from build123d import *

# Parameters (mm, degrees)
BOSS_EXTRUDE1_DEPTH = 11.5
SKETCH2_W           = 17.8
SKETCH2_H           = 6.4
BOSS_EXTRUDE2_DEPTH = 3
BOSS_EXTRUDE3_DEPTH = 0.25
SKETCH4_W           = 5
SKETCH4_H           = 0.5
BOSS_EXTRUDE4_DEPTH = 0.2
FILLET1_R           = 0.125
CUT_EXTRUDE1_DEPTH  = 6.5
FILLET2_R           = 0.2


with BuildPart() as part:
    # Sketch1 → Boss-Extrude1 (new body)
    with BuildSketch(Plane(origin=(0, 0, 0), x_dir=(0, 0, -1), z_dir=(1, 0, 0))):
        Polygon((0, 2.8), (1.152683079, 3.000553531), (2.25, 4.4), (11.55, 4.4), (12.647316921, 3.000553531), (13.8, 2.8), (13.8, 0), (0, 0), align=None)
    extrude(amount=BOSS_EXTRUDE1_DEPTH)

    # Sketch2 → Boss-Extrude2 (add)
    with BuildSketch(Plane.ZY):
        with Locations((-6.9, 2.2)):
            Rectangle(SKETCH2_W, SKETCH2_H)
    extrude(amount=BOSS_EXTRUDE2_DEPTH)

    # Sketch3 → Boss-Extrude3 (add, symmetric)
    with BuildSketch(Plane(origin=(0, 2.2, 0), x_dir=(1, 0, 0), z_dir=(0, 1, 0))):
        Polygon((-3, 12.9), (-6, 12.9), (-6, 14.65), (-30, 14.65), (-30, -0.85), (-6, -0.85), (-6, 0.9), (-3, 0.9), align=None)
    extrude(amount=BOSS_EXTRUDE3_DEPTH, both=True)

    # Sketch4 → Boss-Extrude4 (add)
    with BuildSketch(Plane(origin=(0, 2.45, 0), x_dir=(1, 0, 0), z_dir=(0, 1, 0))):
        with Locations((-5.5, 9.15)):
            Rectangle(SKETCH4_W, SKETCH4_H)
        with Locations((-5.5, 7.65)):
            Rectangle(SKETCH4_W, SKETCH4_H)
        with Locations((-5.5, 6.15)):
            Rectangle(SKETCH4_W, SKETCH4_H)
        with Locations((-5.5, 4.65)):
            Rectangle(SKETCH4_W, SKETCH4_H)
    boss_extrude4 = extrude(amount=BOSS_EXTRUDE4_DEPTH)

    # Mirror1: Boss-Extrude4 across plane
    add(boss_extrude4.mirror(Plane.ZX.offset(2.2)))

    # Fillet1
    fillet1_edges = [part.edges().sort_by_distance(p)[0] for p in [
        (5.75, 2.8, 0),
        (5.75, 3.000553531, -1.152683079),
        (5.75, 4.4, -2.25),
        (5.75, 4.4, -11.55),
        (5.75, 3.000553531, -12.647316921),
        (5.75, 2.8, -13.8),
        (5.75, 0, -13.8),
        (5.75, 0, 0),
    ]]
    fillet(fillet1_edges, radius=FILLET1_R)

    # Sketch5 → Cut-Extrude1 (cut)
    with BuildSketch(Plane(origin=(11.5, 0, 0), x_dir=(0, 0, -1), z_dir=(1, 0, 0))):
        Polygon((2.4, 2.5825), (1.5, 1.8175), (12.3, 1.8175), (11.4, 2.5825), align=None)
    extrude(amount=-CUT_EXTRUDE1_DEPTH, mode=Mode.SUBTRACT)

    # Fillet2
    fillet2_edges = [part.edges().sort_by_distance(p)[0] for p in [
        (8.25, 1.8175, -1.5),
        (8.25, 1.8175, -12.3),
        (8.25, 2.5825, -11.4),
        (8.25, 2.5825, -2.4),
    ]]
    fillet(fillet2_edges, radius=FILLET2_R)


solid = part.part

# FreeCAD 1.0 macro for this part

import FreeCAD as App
import Part
import Sketcher
Q = App.Units.Quantity


def edges_at(feature, points):
    """Names of the edges that pass closest to the given points."""
    edges = feature.Shape.Edges
    near = lambda p: min(range(len(edges)), key=lambda i: edges[i].distToShape(Part.Vertex(*p))[0])
    return sorted({f"Edge{near(p) + 1}" for p in points})


def add_polygon(sketch, points):
    """Adds a closed chain of lines whose ends are joined by coincident constraints."""
    first, n = sketch.GeometryCount, len(points)
    for a, b in zip(points, points[1:] + points[:1]):
        sketch.addGeometry(Part.LineSegment(App.Vector(*a, 0), App.Vector(*b, 0)), False)
    for i in range(n):
        sketch.addConstraint(Sketcher.Constraint("Coincident", first + i, 2, first + (i + 1) % n, 1))

doc = App.newDocument("Part")
body = doc.addObject("PartDesign::Body", "Body")

# Sketch on YZ plane
sketch1 = body.newObject("Sketcher::SketchObject", "Sketch")
sketch1.AttachmentSupport = (doc.getObject("YZ_Plane"), [""])
sketch1.MapMode = "FlatFace"
add_polygon(sketch1, [(3, -1.2), (2.8, 0), (0, 0), (0, -13.8), (2.8, -13.8), (3, -12.6), (4.4, -11.6), (4.4, -2.2)])  # lines 0-7
sketch1.addConstraint(Sketcher.Constraint("Horizontal", 1))
sketch1.addConstraint(Sketcher.Constraint("Vertical", 2))
sketch1.addConstraint(Sketcher.Constraint("Horizontal", 3))
sketch1.addConstraint(Sketcher.Constraint("Vertical", 6))
sketch1.addConstraint(Sketcher.Constraint("Coincident", 1, 2, -1, 1))
sketch1.addConstraint(Sketcher.Constraint("Vertical", 0, 2, 3, 2))
sketch1.addConstraint(Sketcher.Constraint("Vertical", 4, 2, 7, 2))
sketch1.addConstraint(Sketcher.Constraint("Equal", 0, 4))
sketch1.addConstraint(Sketcher.Constraint("Equal", 5, 7))
sketch1.addConstraint(Sketcher.Constraint("DistanceX", 1, 2, 1, 1, Q("2.8 mm")))
sketch1.addConstraint(Sketcher.Constraint("DistanceY", 2, 2, 2, 1, Q("13.8 mm")))
sketch1.addConstraint(Sketcher.Constraint("DistanceY", 6, 1, 6, 2, Q("9.3 mm")))
sketch1.addConstraint(Sketcher.Constraint("DistanceX", -1, 1, 5, 2, Q("4.4 mm")))
sketch1.addConstraint(Sketcher.Constraint("Angle", 0, Q("99.87 deg")))
sketch1.addConstraint(Sketcher.Constraint("Distance", 0, Q("1.17 mm")))
pad1 = body.newObject("PartDesign::Pad", "Pad")
pad1.Profile = sketch1
pad1.Length = 11.5

# Sketch on YZ plane
sketch2 = body.newObject("Sketcher::SketchObject", "Sketch001")
sketch2.AttachmentSupport = (doc.getObject("YZ_Plane"), [""])
sketch2.MapMode = "FlatFace"
add_polygon(sketch2, [(5, -16), (-1, -16), (-1, 2), (5, 2)])  # lines 0-3
sketch2.addConstraint(Sketcher.Constraint("Horizontal", 0))
sketch2.addConstraint(Sketcher.Constraint("Vertical", 1))
sketch2.addConstraint(Sketcher.Constraint("Horizontal", 2))
sketch2.addConstraint(Sketcher.Constraint("Vertical", 3))
sketch2.addConstraint(Sketcher.Constraint("DistanceX", 0, 2, 0, 1, Q("6.4 mm")))
sketch2.addConstraint(Sketcher.Constraint("DistanceY", 1, 1, 1, 2, Q("17.8 mm")))
sketch2.addConstraint(Sketcher.Constraint("DistanceX", 0, 2, -1, 1, Q("1 mm")))
sketch2.addConstraint(Sketcher.Constraint("DistanceY", -1, 1, 1, 2, Q("2 mm")))
pad2 = body.newObject("PartDesign::Pad", "Pad001")
pad2.Profile = sketch2
pad2.Length = 3
pad2.Reversed = True

# Sketch on XZ plane
sketch3 = body.newObject("Sketcher::SketchObject", "Sketch002")
sketch3.AttachmentSupport = (doc.getObject("XZ_Plane"), [""])
sketch3.MapMode = "FlatFace"
sketch3.AttachmentOffset = App.Placement(App.Vector(0, 0, -2.2), App.Rotation())
add_polygon(sketch3, [(-3, -12.9), (-6, -12.9), (-6, -14.7), (-30, -14.7), (-30, 0.8), (-6, 0.8), (-6, -0.9), (-3, -0.9)])  # lines 0-7
sketch3.addConstraint(Sketcher.Constraint("Horizontal", 0))
sketch3.addConstraint(Sketcher.Constraint("Vertical", 1))
sketch3.addConstraint(Sketcher.Constraint("Horizontal", 2))
sketch3.addConstraint(Sketcher.Constraint("Vertical", 3))
sketch3.addConstraint(Sketcher.Constraint("Horizontal", 4))
sketch3.addConstraint(Sketcher.Constraint("Vertical", 5))
sketch3.addConstraint(Sketcher.Constraint("Horizontal", 6))
sketch3.addConstraint(Sketcher.Constraint("Vertical", 7))
sketch3.addConstraint(Sketcher.Constraint("Vertical", 1, 2, 4, 2))
sketch3.addConstraint(Sketcher.Constraint("Equal", 1, 5))
sketch3.addConstraint(Sketcher.Constraint("DistanceX", 0, 2, 0, 1, Q("3 mm")))
sketch3.addConstraint(Sketcher.Constraint("DistanceX", 2, 2, 2, 1, Q("24 mm")))
sketch3.addConstraint(Sketcher.Constraint("DistanceY", 7, 2, 7, 1, Q("12 mm")))
sketch3.addConstraint(Sketcher.Constraint("DistanceY", 3, 1, 3, 2, Q("15.5 mm")))
sketch3.addConstraint(Sketcher.Constraint("DistanceX", 0, 2, -1, 1, Q("6 mm")))
sketch3.addConstraint(Sketcher.Constraint("DistanceY", 0, 2, -1, 1, Q("12.9 mm")))
pad3 = body.newObject("PartDesign::Pad", "Pad002")
pad3.Profile = sketch3
pad3.Length = 0.5
pad3.Midplane = True

# Sketch on XZ plane
sketch4 = body.newObject("Sketcher::SketchObject", "Sketch003")
sketch4.AttachmentSupport = (doc.getObject("XZ_Plane"), [""])
sketch4.MapMode = "FlatFace"
sketch4.AttachmentOffset = App.Placement(App.Vector(0, 0, -2.45), App.Rotation())
add_polygon(sketch4, [(-8, -9.4), (-8, -8.9), (-3, -8.9), (-3, -9.4)])  # lines 0-3
add_polygon(sketch4, [(-8, -7.9), (-8, -7.4), (-3, -7.4), (-3, -7.9)])  # lines 4-7
add_polygon(sketch4, [(-8, -6.4), (-8, -5.9), (-3, -5.9), (-3, -6.4)])  # lines 8-11
add_polygon(sketch4, [(-8, -4.9), (-8, -4.4), (-3, -4.4), (-3, -4.9)])  # lines 12-15
sketch4.addConstraint(Sketcher.Constraint("Vertical", 0))
sketch4.addConstraint(Sketcher.Constraint("Horizontal", 1))
sketch4.addConstraint(Sketcher.Constraint("Vertical", 2))
sketch4.addConstraint(Sketcher.Constraint("Horizontal", 3))
sketch4.addConstraint(Sketcher.Constraint("Vertical", 4))
sketch4.addConstraint(Sketcher.Constraint("Horizontal", 5))
sketch4.addConstraint(Sketcher.Constraint("Vertical", 6))
sketch4.addConstraint(Sketcher.Constraint("Horizontal", 7))
sketch4.addConstraint(Sketcher.Constraint("Vertical", 8))
sketch4.addConstraint(Sketcher.Constraint("Horizontal", 9))
sketch4.addConstraint(Sketcher.Constraint("Vertical", 10))
sketch4.addConstraint(Sketcher.Constraint("Horizontal", 11))
sketch4.addConstraint(Sketcher.Constraint("Vertical", 12))
sketch4.addConstraint(Sketcher.Constraint("Horizontal", 13))
sketch4.addConstraint(Sketcher.Constraint("Vertical", 14))
sketch4.addConstraint(Sketcher.Constraint("Horizontal", 15))
sketch4.addConstraint(Sketcher.Constraint("Vertical", 3, 2, 4, 2))
sketch4.addConstraint(Sketcher.Constraint("Vertical", 2, 2, 5, 2))
sketch4.addConstraint(Sketcher.Constraint("Vertical", 7, 2, 8, 2))
sketch4.addConstraint(Sketcher.Constraint("Vertical", 6, 2, 9, 2))
sketch4.addConstraint(Sketcher.Constraint("Vertical", 11, 2, 12, 2))
sketch4.addConstraint(Sketcher.Constraint("Vertical", 10, 2, 13, 2))
sketch4.addConstraint(Sketcher.Constraint("Equal", 2, 4))
sketch4.addConstraint(Sketcher.Constraint("Equal", 6, 8))
sketch4.addConstraint(Sketcher.Constraint("Equal", 10, 12))
sketch4.addConstraint(Sketcher.Constraint("DistanceX", 1, 1, 1, 2, Q("5 mm")))
sketch4.addConstraint(Sketcher.Constraint("DistanceY", 0, 1, 0, 2, Q("0.5 mm")))
sketch4.addConstraint(Sketcher.Constraint("DistanceX", 0, 2, -1, 1, Q("8 mm")))
sketch4.addConstraint(Sketcher.Constraint("DistanceY", 3, 2, 4, 2, Q("2 mm")))
sketch4.addConstraint(Sketcher.Constraint("DistanceY", 7, 2, 8, 2, Q("2 mm")))
sketch4.addConstraint(Sketcher.Constraint("DistanceY", 11, 2, 12, 2, Q("2 mm")))
sketch4.addConstraint(Sketcher.Constraint("DistanceY", 0, 2, -1, 1, Q("8.9 mm")))
pad4 = body.newObject("PartDesign::Pad", "Pad003")
pad4.Profile = sketch4
pad4.Length = 0.2
pad4.Reversed = True
doc.recompute()

datumplane = body.newObject("PartDesign::Plane", "DatumPlane")
datumplane.AttachmentSupport = (doc.getObject("XZ_Plane"), [""])
datumplane.MapMode = "FlatFace"
datumplane.AttachmentOffset = App.Placement(App.Vector(0, 0, -2.2), App.Rotation())
mirrored = body.newObject("PartDesign::Mirrored", "Mirrored")
mirrored.Originals = [pad4]
mirrored.MirrorPlane = (datumplane, [""])
body.Tip = mirrored
doc.recompute()

fillet = body.newObject("PartDesign::Fillet", "Fillet")
fillet.Base = (mirrored, edges_at(mirrored, [
    (5.75, 2.8, 0),
    (5.75, 3.001, -1.153),
    (5.75, 4.4, -2.25),
    (5.75, 4.4, -11.55),
    (5.75, 3.001, -12.647),
    (5.75, 2.8, -13.8),
    (5.75, 0, -13.8),
    (5.75, 0, 0),
]))
fillet.Radius = 0.125

# Sketch on YZ plane
sketch5 = body.newObject("Sketcher::SketchObject", "Sketch004")
sketch5.AttachmentSupport = (doc.getObject("YZ_Plane"), [""])
sketch5.MapMode = "FlatFace"
sketch5.AttachmentOffset = App.Placement(App.Vector(0, 0, 11.5), App.Rotation())
add_polygon(sketch5, [(2.6, -2.4), (1.8, -1.5), (1.8, -12.3), (2.6, -11.4)])  # lines 0-3
sketch5.addConstraint(Sketcher.Constraint("Vertical", 1))
sketch5.addConstraint(Sketcher.Constraint("Vertical", 3))
sketch5.addConstraint(Sketcher.Constraint("Equal", 0, 2))
sketch5.addConstraint(Sketcher.Constraint("DistanceY", 3, 1, 3, 2, Q("9 mm")))
sketch5.addConstraint(Sketcher.Constraint("DistanceY", 1, 2, 1, 1, Q("10.8 mm")))
sketch5.addConstraint(Sketcher.Constraint("DistanceY", 0, 2, -1, 1, Q("1.5 mm")))
sketch5.addConstraint(Sketcher.Constraint("DistanceX", 1, 2, 2, 2, Q("0.765 mm")))
sketch5.addConstraint(Sketcher.Constraint("DistanceX", -1, 1, 0, 2, Q("1.8175 mm")))
pocket1 = body.newObject("PartDesign::Pocket", "Pocket")
pocket1.Profile = sketch5
pocket1.Length = 6.5
doc.recompute()

fillet2 = body.newObject("PartDesign::Fillet", "Fillet001")
fillet2.Base = (pocket1, edges_at(pocket1, [
    (8.25, 1.817, -1.5),
    (8.25, 1.817, -12.3),
    (8.25, 2.583, -11.4),
    (8.25, 2.583, -2.4),
]))
fillet2.Radius = 0.2

doc.recompute()
